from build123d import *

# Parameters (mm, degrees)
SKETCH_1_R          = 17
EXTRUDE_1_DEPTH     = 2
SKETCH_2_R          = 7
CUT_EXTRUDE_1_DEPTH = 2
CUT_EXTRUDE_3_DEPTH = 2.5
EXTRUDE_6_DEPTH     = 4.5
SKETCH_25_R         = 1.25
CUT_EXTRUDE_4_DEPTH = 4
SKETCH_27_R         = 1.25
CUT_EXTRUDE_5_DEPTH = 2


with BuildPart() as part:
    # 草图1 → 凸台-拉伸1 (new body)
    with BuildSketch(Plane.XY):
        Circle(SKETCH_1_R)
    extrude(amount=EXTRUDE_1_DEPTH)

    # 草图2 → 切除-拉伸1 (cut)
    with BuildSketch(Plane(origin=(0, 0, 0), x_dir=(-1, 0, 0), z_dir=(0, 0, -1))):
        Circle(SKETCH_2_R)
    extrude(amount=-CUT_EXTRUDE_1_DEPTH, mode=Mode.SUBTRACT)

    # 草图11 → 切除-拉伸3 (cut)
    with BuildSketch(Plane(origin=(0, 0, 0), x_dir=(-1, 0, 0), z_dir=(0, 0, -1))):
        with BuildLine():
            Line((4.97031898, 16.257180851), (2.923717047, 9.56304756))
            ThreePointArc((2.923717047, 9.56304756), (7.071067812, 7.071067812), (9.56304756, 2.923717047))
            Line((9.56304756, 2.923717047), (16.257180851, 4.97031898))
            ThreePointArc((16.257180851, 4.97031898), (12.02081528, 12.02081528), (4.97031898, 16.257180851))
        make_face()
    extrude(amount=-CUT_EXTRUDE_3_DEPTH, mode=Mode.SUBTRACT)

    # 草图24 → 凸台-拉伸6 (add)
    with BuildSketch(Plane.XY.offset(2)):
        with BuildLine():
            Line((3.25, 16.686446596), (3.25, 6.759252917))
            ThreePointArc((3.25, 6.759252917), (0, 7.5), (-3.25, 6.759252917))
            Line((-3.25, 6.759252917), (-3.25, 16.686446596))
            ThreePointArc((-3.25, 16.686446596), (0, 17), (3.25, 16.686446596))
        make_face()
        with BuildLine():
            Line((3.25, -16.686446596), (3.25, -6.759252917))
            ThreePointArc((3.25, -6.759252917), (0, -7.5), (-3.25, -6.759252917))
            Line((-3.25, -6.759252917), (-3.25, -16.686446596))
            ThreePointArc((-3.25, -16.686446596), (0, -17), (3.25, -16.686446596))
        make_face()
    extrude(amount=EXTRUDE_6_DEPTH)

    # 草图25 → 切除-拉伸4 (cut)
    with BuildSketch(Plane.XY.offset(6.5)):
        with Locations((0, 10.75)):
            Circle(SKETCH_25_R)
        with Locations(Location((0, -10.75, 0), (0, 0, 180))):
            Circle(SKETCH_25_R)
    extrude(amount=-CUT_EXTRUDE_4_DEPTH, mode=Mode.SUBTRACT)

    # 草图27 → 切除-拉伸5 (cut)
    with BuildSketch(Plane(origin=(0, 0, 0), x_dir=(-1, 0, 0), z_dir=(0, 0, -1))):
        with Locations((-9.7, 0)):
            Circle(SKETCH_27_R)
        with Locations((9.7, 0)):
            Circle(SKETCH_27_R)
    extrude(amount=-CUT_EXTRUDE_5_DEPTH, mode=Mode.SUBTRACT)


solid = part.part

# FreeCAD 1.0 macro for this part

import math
import FreeCAD as App
import Part
import Sketcher
from FreeCAD import Vector
Q = App.Units.Quantity

doc = App.newDocument("Part")
body = doc.addObject("PartDesign::Body", "Body")

sketch1 = body.newObject("Sketcher::SketchObject", "Sketch")
sketch1.AttachmentSupport = (doc.getObject("XY_Plane"), [""])
sketch1.MapMode = "FlatFace"
sketch1.addGeometry(Part.Circle(Vector(0, 0, 0), Vector(0, 0, 1), 17), False)
sketch1.addConstraint(Sketcher.Constraint("Coincident", 0, 3, -1, 1))
sketch1.addConstraint(Sketcher.Constraint("Diameter", 0, 34.0))
pad1 = body.newObject("PartDesign::Pad", "Pad")
pad1.Profile = sketch1
pad1.Length = 2

sketch2 = body.newObject("Sketcher::SketchObject", "Sketch001")
sketch2.AttachmentSupport = (doc.getObject("XY_Plane"), [""])
sketch2.MapMode = "FlatFace"
sketch2.addGeometry(Part.Circle(Vector(0, 0, 0), Vector(0, 0, 1), 7), False)
sketch2.addConstraint(Sketcher.Constraint("Coincident", 0, 3, -1, 1))
sketch2.addConstraint(Sketcher.Constraint("Diameter", 0, 14.0))
pocket1 = body.newObject("PartDesign::Pocket", "Pocket")
pocket1.Profile = sketch2
pocket1.Length = 2
pocket1.Reversed = True

sketch3 = body.newObject("Sketcher::SketchObject", "Sketch002")
sketch3.AttachmentSupport = (doc.getObject("XY_Plane"), [""])
sketch3.MapMode = "FlatFace"
sketch3.addGeometry(Part.LineSegment(Vector(-4.970319, 16.257181, 0), Vector(-2.923717, 9.563048, 0)), False)
sketch3.addGeometry(Part.ArcOfCircle(Part.Circle(Vector(0, 0, 0), Vector(0, 0, 1), 10), math.radians(107), math.radians(163)), False)
sketch3.addGeometry(Part.LineSegment(Vector(-9.563048, 2.923717, 0), Vector(-16.257181, 4.970319, 0)), False)
sketch3.addGeometry(Part.ArcOfCircle(Part.Circle(Vector(0, 0, 0), Vector(0, 0, 1), 17), math.radians(107), math.radians(163)), False)
sketch3.addConstraint(Sketcher.Constraint("Coincident", 0, 2, 1, 1))
sketch3.addConstraint(Sketcher.Constraint("Coincident", 1, 2, 2, 1))
sketch3.addConstraint(Sketcher.Constraint("Coincident", 2, 2, 3, 2))
sketch3.addConstraint(Sketcher.Constraint("Coincident", 3, 1, 0, 1))
sketch3.addConstraint(Sketcher.Constraint("Coincident", 1, 3, -1, 1))
sketch3.addConstraint(Sketcher.Constraint("Coincident", 3, 3, -1, 1))
sketch3.addConstraint(Sketcher.Constraint("Radius", 1, 10.0))
sketch3.addConstraint(Sketcher.Constraint("Radius", 3, 17.0))
sketch3.addConstraint(Sketcher.Constraint("Angle", 0, Q("-73 deg")))
sketch3.addConstraint(Sketcher.Constraint("Angle", 2, Q("163 deg")))
sketch3.addConstraint(Sketcher.Constraint("DistanceX", 2, 2, -1, 1, 16.257181))
sketch3.addConstraint(Sketcher.Constraint("DistanceX", 3, 1, -1, 1, 4.970319))
pocket2 = body.newObject("PartDesign::Pocket", "Pocket001")
pocket2.Profile = sketch3
pocket2.Length = 2.5
pocket2.Reversed = True

sketch4 = body.newObject("Sketcher::SketchObject", "Sketch003")
sketch4.AttachmentSupport = (doc.getObject("XY_Plane"), [""])
sketch4.MapMode = "FlatFace"
sketch4.AttachmentOffset = App.Placement(Vector(0, 0, 2), App.Rotation())
sketch4.addGeometry(Part.LineSegment(Vector(3.25, 6.759253, 0), Vector(3.25, 16.686447, 0)), False)
sketch4.addGeometry(Part.ArcOfCircle(Part.Circle(Vector(0, 0, 0), Vector(0, 0, 1), 17), math.radians(78.97855), math.radians(101.02145)), False)
sketch4.addGeometry(Part.LineSegment(Vector(-3.25, 16.686447, 0), Vector(-3.25, 6.759253, 0)), False)
sketch4.addGeometry(Part.ArcOfCircle(Part.Circle(Vector(0, 0, 0), Vector(0, 0, 1), 7.5), math.radians(64.320711), math.radians(115.679289)), False)
sketch4.addGeometry(Part.LineSegment(Vector(3.25, -16.686447, 0), Vector(3.25, -6.759253, 0)), False)
sketch4.addGeometry(Part.ArcOfCircle(Part.Circle(Vector(0, 0, 0), Vector(0, 0, 1), 7.5), math.radians(-115.679289), math.radians(-64.320711)), False)
sketch4.addGeometry(Part.LineSegment(Vector(-3.25, -6.759253, 0), Vector(-3.25, -16.686447, 0)), False)
sketch4.addGeometry(Part.ArcOfCircle(Part.Circle(Vector(0, 0, 0), Vector(0, 0, 1), 17), math.radians(-101.02145), math.radians(-78.97855)), False)
sketch4.addConstraint(Sketcher.Constraint("Coincident", 0, 2, 1, 1))
sketch4.addConstraint(Sketcher.Constraint("Coincident", 1, 2, 2, 1))
sketch4.addConstraint(Sketcher.Constraint("Coincident", 2, 2, 3, 2))
sketch4.addConstraint(Sketcher.Constraint("Coincident", 3, 1, 0, 1))
sketch4.addConstraint(Sketcher.Constraint("Coincident", 4, 2, 5, 2))
sketch4.addConstraint(Sketcher.Constraint("Coincident", 5, 1, 6, 1))
sketch4.addConstraint(Sketcher.Constraint("Coincident", 6, 2, 7, 1))
sketch4.addConstraint(Sketcher.Constraint("Coincident", 7, 2, 4, 1))
sketch4.addConstraint(Sketcher.Constraint("Vertical", 0))
sketch4.addConstraint(Sketcher.Constraint("Vertical", 2))
sketch4.addConstraint(Sketcher.Constraint("Vertical", 4))
sketch4.addConstraint(Sketcher.Constraint("Vertical", 6))
sketch4.addConstraint(Sketcher.Constraint("Coincident", 1, 3, -1, 1))
sketch4.addConstraint(Sketcher.Constraint("Coincident", 3, 3, -1, 1))
sketch4.addConstraint(Sketcher.Constraint("Coincident", 5, 3, -1, 1))
sketch4.addConstraint(Sketcher.Constraint("Coincident", 7, 3, -1, 1))
sketch4.addConstraint(Sketcher.Constraint("Equal", 3, 5))
sketch4.addConstraint(Sketcher.Constraint("Equal", 1, 7))
sketch4.addConstraint(Sketcher.Constraint("Horizontal", 0, 2, 1, 2))
sketch4.addConstraint(Sketcher.Constraint("Horizontal", 4, 2, 5, 1))
sketch4.addConstraint(Sketcher.Constraint("Vertical", 3, 1, 4, 2))
sketch4.addConstraint(Sketcher.Constraint("Radius", 1, 17.0))
sketch4.addConstraint(Sketcher.Constraint("Radius", 3, 7.5))
sketch4.addConstraint(Sketcher.Constraint("DistanceX", 1, 2, 0, 2, 6.5))
pad2 = body.newObject("PartDesign::Pad", "Pad001")
pad2.Profile = sketch4
pad2.Length = 4.5

sketch5 = body.newObject("Sketcher::SketchObject", "Sketch004")
sketch5.AttachmentSupport = (doc.getObject("XY_Plane"), [""])
sketch5.MapMode = "FlatFace"
sketch5.AttachmentOffset = App.Placement(Vector(0, 0, 6.5), App.Rotation())
sketch5.addGeometry(Part.Circle(Vector(0, 10.75, 0), Vector(0, 0, 1), 1.25), False)
sketch5.addGeometry(Part.Circle(Vector(0, -10.75, 0), Vector(0, 0, 1), 1.25), False)
sketch5.addConstraint(Sketcher.Constraint("Equal", 0, 1))
sketch5.addConstraint(Sketcher.Constraint("Symmetric", 0, 3, 1, 3, -1, 1))
sketch5.addConstraint(Sketcher.Constraint("PointOnObject", 0, 3, -2))
sketch5.addConstraint(Sketcher.Constraint("Diameter", 0, 2.5))
sketch5.addConstraint(Sketcher.Constraint("DistanceY", 1, 3, 0, 3, 21.5))
pocket3 = body.newObject("PartDesign::Pocket", "Pocket002")
pocket3.Profile = sketch5
pocket3.Length = 4

sketch6 = body.newObject("Sketcher::SketchObject", "Sketch005")
sketch6.AttachmentSupport = (doc.getObject("XY_Plane"), [""])
sketch6.MapMode = "FlatFace"
sketch6.addGeometry(Part.Circle(Vector(9.7, 0, 0), Vector(0, 0, 1), 1.25), False)
sketch6.addGeometry(Part.Circle(Vector(-9.7, 0, 0), Vector(0, 0, 1), 1.25), False)
sketch6.addConstraint(Sketcher.Constraint("Equal", 0, 1))
sketch6.addConstraint(Sketcher.Constraint("Symmetric", 0, 3, 1, 3, -1, 1))
sketch6.addConstraint(Sketcher.Constraint("PointOnObject", 0, 3, -1))
sketch6.addConstraint(Sketcher.Constraint("Diameter", 0, 2.5))
sketch6.addConstraint(Sketcher.Constraint("DistanceX", -1, 1, 0, 3, 9.7))
pocket4 = body.newObject("PartDesign::Pocket", "Pocket003")
pocket4.Profile = sketch6
pocket4.Length = 2
pocket4.Reversed = True

doc.recompute()
